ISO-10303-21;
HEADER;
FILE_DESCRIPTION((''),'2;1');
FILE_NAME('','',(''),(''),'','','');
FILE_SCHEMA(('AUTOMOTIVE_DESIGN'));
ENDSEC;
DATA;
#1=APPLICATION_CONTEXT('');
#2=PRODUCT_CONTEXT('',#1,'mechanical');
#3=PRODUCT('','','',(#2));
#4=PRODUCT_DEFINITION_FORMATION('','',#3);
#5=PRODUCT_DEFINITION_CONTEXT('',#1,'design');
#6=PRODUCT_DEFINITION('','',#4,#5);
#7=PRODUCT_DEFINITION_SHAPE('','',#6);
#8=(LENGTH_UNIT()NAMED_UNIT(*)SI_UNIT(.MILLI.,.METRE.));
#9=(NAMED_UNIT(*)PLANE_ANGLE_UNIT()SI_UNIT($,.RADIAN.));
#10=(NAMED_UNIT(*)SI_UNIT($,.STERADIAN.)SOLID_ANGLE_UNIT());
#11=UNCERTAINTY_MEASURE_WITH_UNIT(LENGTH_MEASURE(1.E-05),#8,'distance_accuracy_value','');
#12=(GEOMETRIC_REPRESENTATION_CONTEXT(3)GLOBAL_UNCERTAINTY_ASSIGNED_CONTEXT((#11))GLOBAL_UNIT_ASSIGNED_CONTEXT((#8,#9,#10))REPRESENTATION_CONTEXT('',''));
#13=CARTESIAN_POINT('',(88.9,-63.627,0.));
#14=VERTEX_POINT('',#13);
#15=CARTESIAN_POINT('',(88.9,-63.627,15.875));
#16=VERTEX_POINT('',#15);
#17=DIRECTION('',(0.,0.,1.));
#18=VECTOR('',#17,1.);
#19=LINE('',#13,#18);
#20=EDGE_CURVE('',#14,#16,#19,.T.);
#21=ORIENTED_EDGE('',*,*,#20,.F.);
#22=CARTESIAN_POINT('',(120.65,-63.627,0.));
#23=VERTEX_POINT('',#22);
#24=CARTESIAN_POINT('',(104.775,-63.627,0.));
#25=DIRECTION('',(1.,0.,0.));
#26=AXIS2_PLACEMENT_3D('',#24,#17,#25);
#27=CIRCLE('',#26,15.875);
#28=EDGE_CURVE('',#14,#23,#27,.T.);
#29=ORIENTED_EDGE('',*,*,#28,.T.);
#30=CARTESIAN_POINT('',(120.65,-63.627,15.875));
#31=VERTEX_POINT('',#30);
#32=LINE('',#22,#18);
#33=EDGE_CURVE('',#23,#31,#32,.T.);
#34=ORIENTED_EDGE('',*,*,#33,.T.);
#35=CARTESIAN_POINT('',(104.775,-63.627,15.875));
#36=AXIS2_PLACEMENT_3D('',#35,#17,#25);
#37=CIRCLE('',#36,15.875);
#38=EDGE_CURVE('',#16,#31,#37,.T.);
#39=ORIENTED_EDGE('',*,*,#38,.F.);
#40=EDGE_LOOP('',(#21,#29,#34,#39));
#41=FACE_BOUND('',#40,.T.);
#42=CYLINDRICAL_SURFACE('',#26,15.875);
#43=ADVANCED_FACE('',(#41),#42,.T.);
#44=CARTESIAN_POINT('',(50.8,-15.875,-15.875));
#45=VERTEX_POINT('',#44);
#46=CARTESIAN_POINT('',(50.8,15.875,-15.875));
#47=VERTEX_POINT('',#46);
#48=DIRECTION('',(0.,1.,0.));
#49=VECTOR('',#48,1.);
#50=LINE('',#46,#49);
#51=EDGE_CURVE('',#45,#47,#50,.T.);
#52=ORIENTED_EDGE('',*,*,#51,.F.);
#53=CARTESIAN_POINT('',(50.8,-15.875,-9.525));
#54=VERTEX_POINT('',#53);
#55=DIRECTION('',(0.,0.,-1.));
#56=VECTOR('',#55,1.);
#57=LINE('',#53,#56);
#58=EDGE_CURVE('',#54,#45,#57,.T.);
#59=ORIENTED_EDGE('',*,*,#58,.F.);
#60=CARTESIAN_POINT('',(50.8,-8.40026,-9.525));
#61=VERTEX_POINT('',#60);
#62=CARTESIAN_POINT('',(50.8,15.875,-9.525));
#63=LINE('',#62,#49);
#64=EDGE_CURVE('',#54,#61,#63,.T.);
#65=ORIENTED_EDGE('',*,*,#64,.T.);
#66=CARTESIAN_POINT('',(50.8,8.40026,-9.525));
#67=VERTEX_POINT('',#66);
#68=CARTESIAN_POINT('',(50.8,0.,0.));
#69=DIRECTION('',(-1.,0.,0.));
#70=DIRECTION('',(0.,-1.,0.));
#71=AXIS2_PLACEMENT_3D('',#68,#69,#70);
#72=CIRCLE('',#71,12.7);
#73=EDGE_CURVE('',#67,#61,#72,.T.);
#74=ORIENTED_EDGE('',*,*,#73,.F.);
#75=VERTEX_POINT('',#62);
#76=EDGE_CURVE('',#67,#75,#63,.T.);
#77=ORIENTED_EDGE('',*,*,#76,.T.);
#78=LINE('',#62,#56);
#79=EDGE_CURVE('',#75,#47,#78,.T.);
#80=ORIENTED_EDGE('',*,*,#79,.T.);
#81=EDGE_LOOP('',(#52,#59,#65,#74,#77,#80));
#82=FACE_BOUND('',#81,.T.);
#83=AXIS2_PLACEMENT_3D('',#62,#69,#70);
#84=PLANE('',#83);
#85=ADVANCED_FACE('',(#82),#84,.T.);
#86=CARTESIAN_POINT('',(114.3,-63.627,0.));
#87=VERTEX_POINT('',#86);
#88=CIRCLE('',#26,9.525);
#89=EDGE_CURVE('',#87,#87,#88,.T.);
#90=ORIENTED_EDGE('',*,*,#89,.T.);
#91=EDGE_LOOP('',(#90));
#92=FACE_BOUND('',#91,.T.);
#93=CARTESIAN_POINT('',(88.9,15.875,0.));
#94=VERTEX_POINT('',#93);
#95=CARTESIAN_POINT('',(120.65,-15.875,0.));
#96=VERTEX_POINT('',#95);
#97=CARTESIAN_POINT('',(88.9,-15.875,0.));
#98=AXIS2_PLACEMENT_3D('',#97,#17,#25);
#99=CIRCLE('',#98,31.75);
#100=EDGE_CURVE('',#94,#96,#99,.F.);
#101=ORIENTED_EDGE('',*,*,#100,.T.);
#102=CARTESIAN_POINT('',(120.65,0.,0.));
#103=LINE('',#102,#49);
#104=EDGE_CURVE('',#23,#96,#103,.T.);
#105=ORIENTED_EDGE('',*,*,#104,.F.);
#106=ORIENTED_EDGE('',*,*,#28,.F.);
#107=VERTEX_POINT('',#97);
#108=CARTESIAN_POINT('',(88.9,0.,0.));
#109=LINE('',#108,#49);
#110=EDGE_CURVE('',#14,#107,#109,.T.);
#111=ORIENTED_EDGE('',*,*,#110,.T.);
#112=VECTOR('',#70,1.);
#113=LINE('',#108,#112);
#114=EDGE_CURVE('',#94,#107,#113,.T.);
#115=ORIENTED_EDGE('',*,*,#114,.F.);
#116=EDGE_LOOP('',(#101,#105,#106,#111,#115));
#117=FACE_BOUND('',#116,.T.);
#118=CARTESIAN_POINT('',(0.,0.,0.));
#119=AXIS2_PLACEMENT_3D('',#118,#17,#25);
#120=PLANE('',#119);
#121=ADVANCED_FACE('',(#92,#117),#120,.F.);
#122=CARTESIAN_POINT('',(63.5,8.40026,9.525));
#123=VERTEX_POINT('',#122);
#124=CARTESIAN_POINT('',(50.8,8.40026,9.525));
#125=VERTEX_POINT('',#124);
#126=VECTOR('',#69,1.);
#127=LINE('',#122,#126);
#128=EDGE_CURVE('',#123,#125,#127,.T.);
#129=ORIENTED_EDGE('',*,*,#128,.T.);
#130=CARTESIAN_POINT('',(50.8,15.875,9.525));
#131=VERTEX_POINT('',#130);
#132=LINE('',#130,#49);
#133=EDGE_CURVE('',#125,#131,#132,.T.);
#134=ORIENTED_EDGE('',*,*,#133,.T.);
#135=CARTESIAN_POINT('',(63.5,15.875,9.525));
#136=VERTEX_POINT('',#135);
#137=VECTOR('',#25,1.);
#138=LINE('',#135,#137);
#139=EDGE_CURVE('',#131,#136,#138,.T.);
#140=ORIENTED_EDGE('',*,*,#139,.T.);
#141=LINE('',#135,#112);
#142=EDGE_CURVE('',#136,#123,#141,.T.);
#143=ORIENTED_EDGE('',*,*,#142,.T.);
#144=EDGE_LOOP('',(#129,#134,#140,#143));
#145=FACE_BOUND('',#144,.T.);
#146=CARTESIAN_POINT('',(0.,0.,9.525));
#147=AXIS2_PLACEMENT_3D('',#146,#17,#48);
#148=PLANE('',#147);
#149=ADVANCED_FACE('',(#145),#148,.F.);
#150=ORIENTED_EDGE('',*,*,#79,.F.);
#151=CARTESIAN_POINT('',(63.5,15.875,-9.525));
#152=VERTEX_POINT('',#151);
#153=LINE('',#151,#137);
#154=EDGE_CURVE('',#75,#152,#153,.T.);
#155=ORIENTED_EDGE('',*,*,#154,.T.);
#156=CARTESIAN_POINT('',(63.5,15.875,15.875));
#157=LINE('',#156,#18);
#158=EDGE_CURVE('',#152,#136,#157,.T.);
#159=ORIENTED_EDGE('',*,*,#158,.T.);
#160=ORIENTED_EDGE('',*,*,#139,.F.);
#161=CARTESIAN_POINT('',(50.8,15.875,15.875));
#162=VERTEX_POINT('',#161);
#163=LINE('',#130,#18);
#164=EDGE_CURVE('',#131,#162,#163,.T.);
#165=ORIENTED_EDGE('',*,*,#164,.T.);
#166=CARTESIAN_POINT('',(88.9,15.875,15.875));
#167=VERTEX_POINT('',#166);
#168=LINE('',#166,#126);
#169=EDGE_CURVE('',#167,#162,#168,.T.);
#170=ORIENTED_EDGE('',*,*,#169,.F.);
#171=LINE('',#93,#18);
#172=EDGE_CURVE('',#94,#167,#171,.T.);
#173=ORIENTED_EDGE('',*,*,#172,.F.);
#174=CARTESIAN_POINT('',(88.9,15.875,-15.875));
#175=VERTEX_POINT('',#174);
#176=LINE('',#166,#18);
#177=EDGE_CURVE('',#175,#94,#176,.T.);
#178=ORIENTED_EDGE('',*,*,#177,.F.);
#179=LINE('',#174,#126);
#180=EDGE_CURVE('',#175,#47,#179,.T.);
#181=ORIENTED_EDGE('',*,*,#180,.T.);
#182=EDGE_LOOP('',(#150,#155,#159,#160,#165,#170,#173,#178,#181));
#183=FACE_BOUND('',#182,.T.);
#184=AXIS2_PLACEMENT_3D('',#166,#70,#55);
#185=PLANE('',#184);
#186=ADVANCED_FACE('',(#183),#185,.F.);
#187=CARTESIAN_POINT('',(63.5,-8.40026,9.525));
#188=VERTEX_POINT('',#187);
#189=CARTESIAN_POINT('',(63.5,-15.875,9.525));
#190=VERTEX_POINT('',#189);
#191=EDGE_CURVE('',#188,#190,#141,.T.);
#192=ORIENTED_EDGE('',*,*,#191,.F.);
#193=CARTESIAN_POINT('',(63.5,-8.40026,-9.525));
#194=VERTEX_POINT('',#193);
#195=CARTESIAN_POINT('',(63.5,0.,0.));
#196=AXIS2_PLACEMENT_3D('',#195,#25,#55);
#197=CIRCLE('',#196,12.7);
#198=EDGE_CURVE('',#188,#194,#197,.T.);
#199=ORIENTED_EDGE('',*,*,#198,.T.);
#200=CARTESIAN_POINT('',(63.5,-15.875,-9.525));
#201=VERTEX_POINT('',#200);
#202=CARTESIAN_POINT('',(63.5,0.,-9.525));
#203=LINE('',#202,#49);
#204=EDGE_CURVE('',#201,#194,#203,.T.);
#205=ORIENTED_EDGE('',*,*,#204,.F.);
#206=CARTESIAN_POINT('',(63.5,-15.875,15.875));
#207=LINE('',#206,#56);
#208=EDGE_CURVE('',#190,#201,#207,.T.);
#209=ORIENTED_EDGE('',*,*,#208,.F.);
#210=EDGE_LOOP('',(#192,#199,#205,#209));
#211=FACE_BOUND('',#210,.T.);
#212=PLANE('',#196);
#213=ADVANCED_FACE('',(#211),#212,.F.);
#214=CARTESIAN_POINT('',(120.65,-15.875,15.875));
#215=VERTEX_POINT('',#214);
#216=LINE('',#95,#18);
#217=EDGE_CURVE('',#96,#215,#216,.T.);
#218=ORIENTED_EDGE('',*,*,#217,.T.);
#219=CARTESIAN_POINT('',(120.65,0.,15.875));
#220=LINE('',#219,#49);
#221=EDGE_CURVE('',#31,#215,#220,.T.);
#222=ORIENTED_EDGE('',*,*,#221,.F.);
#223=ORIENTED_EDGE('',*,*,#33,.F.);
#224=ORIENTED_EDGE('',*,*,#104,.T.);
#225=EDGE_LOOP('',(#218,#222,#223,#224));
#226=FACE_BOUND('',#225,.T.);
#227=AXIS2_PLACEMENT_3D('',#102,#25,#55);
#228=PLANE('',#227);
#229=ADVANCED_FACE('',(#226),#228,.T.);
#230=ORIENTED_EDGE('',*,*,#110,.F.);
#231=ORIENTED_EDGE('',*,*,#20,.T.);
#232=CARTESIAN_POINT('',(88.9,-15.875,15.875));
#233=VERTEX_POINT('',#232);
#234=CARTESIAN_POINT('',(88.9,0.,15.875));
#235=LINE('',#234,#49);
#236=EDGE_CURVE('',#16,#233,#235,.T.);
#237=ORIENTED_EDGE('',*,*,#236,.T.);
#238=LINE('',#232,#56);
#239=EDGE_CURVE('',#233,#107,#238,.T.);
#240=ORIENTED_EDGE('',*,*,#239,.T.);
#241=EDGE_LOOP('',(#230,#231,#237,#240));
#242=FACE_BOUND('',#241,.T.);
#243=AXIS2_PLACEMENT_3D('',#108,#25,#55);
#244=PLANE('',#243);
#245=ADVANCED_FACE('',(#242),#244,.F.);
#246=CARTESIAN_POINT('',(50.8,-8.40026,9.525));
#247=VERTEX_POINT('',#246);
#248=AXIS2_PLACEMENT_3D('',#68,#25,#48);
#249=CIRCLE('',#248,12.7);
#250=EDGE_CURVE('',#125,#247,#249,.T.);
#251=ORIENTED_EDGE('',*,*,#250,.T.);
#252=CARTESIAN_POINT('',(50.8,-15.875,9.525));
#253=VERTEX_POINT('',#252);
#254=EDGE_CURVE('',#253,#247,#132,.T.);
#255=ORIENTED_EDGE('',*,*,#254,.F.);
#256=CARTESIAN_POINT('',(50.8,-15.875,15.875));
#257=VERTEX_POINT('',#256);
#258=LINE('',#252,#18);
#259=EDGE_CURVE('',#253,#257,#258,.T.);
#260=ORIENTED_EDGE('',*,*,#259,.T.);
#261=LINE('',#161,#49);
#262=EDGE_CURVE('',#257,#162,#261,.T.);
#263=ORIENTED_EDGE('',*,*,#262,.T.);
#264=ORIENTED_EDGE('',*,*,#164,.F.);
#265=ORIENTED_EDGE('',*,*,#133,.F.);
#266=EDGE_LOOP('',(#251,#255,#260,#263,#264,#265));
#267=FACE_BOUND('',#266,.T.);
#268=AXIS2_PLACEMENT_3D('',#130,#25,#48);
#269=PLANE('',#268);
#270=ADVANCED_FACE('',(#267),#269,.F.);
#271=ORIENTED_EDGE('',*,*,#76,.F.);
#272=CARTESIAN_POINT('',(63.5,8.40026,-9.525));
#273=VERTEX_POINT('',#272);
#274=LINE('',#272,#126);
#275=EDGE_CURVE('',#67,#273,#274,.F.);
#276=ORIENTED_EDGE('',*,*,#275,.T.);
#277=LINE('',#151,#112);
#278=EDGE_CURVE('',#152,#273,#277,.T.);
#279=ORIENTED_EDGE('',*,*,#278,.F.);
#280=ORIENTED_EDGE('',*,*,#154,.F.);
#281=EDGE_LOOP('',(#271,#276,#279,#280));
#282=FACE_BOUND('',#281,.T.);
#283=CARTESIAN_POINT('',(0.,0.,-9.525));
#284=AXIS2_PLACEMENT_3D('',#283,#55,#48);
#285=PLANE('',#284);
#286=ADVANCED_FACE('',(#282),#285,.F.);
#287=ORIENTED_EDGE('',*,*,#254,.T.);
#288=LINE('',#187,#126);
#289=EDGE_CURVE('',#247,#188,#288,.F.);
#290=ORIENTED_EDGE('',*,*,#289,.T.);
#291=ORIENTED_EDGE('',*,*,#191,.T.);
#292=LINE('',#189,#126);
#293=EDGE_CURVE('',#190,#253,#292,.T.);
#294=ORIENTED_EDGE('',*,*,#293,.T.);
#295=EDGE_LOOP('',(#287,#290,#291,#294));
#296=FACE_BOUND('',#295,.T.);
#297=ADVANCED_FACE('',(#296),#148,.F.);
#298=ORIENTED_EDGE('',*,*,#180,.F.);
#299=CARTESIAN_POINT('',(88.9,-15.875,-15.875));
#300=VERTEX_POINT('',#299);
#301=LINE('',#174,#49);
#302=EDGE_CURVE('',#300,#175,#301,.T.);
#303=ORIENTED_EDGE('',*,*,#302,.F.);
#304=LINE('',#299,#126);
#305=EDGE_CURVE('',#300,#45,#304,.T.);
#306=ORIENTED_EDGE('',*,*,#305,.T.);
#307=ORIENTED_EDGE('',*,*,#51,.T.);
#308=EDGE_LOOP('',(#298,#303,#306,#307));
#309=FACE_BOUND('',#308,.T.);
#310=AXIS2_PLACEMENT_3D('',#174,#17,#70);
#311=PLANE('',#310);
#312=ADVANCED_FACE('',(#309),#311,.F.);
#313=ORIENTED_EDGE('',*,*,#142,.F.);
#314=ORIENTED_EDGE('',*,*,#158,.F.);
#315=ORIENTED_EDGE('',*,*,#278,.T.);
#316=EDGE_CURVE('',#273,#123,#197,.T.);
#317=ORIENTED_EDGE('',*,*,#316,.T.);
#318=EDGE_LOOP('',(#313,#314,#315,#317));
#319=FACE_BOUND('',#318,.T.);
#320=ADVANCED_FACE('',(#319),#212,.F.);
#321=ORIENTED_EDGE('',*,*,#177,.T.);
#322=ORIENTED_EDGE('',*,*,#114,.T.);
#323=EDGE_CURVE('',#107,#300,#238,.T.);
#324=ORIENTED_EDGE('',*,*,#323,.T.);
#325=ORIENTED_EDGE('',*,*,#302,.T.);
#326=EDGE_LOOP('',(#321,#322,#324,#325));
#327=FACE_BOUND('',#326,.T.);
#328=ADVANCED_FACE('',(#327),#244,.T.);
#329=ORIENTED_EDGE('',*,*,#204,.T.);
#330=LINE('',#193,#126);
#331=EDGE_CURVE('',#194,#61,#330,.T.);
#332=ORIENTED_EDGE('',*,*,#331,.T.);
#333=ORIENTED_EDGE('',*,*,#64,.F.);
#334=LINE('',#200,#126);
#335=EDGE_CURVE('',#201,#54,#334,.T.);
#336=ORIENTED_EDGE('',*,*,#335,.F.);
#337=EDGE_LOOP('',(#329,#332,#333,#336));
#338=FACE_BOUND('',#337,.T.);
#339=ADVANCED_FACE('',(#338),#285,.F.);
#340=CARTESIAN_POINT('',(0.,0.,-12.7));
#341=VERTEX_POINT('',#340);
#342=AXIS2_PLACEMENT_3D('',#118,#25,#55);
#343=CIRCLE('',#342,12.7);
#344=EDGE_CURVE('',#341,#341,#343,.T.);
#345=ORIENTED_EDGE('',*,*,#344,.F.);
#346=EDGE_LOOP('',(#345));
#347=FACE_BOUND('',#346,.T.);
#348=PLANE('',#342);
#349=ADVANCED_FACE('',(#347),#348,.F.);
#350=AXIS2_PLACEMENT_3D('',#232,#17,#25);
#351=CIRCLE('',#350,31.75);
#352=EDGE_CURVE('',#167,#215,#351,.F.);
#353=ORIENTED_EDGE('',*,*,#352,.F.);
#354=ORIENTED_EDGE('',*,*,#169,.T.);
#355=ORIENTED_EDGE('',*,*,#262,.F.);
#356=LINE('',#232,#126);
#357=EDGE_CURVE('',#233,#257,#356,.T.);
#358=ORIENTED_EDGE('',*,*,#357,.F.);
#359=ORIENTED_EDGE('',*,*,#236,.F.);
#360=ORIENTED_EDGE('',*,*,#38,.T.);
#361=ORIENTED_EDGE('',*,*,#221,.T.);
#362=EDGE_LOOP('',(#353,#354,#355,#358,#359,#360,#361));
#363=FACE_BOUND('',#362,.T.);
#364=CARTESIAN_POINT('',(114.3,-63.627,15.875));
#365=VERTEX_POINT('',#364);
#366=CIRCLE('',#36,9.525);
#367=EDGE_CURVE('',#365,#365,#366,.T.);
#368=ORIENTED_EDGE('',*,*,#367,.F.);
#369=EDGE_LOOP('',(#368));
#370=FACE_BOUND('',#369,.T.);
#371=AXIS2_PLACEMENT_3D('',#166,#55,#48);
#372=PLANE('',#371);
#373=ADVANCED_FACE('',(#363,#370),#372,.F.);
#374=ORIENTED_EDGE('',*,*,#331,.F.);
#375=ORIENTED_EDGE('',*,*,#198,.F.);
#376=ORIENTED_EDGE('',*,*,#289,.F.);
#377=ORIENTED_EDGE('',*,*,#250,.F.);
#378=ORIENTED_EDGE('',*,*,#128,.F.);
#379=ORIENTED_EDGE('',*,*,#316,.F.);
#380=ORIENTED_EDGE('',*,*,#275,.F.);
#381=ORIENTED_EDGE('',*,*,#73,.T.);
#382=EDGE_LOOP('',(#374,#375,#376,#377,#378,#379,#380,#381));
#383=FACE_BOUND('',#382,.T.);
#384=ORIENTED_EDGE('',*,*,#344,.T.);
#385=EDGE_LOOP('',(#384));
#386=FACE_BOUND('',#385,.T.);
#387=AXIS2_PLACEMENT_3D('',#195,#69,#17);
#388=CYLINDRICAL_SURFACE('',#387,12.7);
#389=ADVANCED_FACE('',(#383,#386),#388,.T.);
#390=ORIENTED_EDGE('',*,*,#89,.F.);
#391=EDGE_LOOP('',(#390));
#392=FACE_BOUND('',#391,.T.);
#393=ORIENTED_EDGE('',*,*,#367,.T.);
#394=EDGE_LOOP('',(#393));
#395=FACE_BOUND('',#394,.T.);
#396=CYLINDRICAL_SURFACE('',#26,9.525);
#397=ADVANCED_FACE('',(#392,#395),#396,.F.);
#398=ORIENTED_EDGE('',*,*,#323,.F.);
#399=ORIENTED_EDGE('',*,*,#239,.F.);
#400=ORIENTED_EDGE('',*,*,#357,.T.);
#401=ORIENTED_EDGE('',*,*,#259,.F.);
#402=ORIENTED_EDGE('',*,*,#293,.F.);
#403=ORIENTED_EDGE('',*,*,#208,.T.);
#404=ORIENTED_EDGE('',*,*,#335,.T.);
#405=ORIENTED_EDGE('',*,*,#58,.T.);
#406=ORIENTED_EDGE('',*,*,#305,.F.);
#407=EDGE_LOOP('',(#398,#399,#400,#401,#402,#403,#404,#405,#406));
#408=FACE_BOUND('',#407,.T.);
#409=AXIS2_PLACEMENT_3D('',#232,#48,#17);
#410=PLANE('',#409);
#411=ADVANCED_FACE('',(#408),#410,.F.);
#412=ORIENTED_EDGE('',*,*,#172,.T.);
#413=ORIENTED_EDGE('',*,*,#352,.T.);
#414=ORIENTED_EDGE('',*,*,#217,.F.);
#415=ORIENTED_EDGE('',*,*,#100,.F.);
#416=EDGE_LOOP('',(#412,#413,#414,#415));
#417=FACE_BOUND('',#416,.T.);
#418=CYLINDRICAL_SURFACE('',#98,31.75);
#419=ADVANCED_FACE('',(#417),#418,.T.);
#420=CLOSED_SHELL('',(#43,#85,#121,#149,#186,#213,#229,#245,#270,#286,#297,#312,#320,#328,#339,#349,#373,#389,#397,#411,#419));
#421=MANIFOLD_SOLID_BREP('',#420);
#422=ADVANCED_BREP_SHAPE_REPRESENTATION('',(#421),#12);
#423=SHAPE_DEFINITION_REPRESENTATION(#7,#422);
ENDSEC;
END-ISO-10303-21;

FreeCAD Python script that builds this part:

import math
import FreeCAD as App
import Part
import Sketcher
Q = App.Units.Quantity

doc = App.newDocument("Part")
params = doc.addObject("Spreadsheet::Sheet", "Params")
for row, (alias, value) in enumerate([
    ("sketch1_diameter", "1 in"),
    ("pad1_length", "2.5 in"),
    ("sketch2_width", "1.25 in"),
    ("pad2_length", "1 in"),
    ("sketch3_width", "0.5 in"),
    ("sketch3_height", "1.25 in"),
    ("pad3_length", "0.25 in"),
    ("sketch4_diameter", "0.75 in"),
    ("sketch4_radius", "1.25 in"),
    ("sketch4_height", "3.13 in"),
    ("pad4_length", "0.625 in"),
], start=1):
    params.set(f"A{row}", alias)
    params.set(f"B{row}", "=" + value)
    params.setAlias(f"B{row}", alias)

body = doc.addObject("PartDesign::Body", "Body")

sketch1 = body.newObject("Sketcher::SketchObject", "Sketch")
sketch1.AttachmentSupport = (doc.getObject("YZ_Plane"), [""])
sketch1.MapMode = "FlatFace"
sketch1.addGeometry(Part.Circle(App.Vector(0, 0, 0), App.Vector(0, 0, 1), 13), False)
sketch1.addConstraint([
    Sketcher.Constraint("Coincident", 0, 3, -1, 1),
    Sketcher.Constraint("Diameter", 0, Q("1 in")),
])
sketch1.setExpression("Constraints[1]", "Params.sketch1_diameter")
pad1 = body.newObject("PartDesign::Pad", "Pad")
pad1.Profile = sketch1
pad1.setExpression("Length", "Params.pad1_length")

sketch2 = body.newObject("Sketcher::SketchObject", "Sketch001")
sketch2.AttachmentSupport = (doc.getObject("YZ_Plane"), [""])
sketch2.MapMode = "FlatFace"
sketch2.AttachmentOffset = App.Placement(App.Vector(0, 0, 2.5 * 25.4), App.Rotation())
sketch2.addGeometry([
    Part.LineSegment(App.Vector(16, 16, 0), App.Vector(-16, 16, 0)),
    Part.LineSegment(App.Vector(-16, 16, 0), App.Vector(-16, -16, 0)),
    Part.LineSegment(App.Vector(-16, -16, 0), App.Vector(16, -16, 0)),
    Part.LineSegment(App.Vector(16, -16, 0), App.Vector(16, 16, 0)),
], False)
sketch2.addConstraint([
    Sketcher.Constraint("Coincident", 0, 2, 1, 1),
    Sketcher.Constraint("Coincident", 1, 2, 2, 1),
    Sketcher.Constraint("Coincident", 2, 2, 3, 1),
    Sketcher.Constraint("Coincident", 3, 2, 0, 1),
    Sketcher.Constraint("Horizontal", 0),
    Sketcher.Constraint("Vertical", 1),
    Sketcher.Constraint("Horizontal", 2),
    Sketcher.Constraint("Vertical", 3),
    Sketcher.Constraint("Symmetric", 0, 2, 2, 2, -1, 1),
    Sketcher.Constraint("Equal", 2, 1),
    Sketcher.Constraint("DistanceX", 0, 2, 0, 1, Q("1.25 in")),
])
sketch2.setExpression("Constraints[10]", "Params.sketch2_width")
pad2 = body.newObject("PartDesign::Pad", "Pad001")
pad2.Profile = sketch2
pad2.setExpression("Length", "Params.pad2_length")

sketch3 = body.newObject("Sketcher::SketchObject", "Sketch002")
sketch3.AttachmentSupport = (doc.getObject("XY_Plane"), [""])
sketch3.MapMode = "FlatFace"
sketch3.AttachmentOffset = App.Placement(App.Vector(0, 0, -0.625 * 25.4), App.Rotation())
sketch3.addGeometry([
    Part.LineSegment(App.Vector(64, 16, 0), App.Vector(64, -16, 0)),
    Part.LineSegment(App.Vector(64, -16, 0), App.Vector(51, -16, 0)),
    Part.LineSegment(App.Vector(51, -16, 0), App.Vector(51, 16, 0)),
    Part.LineSegment(App.Vector(51, 16, 0), App.Vector(64, 16, 0)),
], False)
sketch3.addConstraint([
    Sketcher.Constraint("Coincident", 0, 2, 1, 1),
    Sketcher.Constraint("Coincident", 1, 2, 2, 1),
    Sketcher.Constraint("Coincident", 2, 2, 3, 1),
    Sketcher.Constraint("Coincident", 3, 2, 0, 1),
    Sketcher.Constraint("Vertical", 0),
    Sketcher.Constraint("Horizontal", 1),
    Sketcher.Constraint("Vertical", 2),
    Sketcher.Constraint("Horizontal", 3),
    Sketcher.Constraint("DistanceX", 1, 2, 1, 1, Q("0.5 in")),
    Sketcher.Constraint("DistanceX", -1, 1, 1, 2, Q("2 in")),
    Sketcher.Constraint("DistanceY", 0, 2, 0, 1, Q("1.25 in")),
    Sketcher.Constraint("DistanceY", 0, 2, -1, 1, Q("0.625 in")),
])
sketch3.setExpression("Constraints[8]", "Params.sketch3_width")
sketch3.setExpression("Constraints[10]", "Params.sketch3_height")
pad3 = body.newObject("PartDesign::Pad", "Pad002")
pad3.Profile = sketch3
pad3.setExpression("Length", "Params.pad3_length")
doc.recompute()

mirrored = body.newObject("PartDesign::Mirrored", "Mirrored")
mirrored.Originals = [pad3]
mirrored.MirrorPlane = (doc.getObject("XY_Plane"), [""])
body.Tip = mirrored

sketch4 = body.newObject("Sketcher::SketchObject", "Sketch003")
sketch4.AttachmentSupport = (doc.getObject("XY_Plane"), [""])
sketch4.MapMode = "FlatFace"
sketch4.AttachmentOffset = App.Placement(App.Vector(0, 0, 0.625 * 25.4), App.Rotation())
sketch4.addGeometry([
    Part.LineSegment(App.Vector(89, 16, 0), App.Vector(89, -64, 0)),
    Part.ArcOfCircle(Part.Circle(App.Vector(105, -64, 0), App.Vector(0, 0, 1), 16), math.radians(180), math.radians(360)),
    Part.LineSegment(App.Vector(121, -64, 0), App.Vector(121, -16, 0)),
    Part.ArcOfCircle(Part.Circle(App.Vector(89, -16, 0), App.Vector(0, 0, 1), 32), math.radians(0), math.radians(90)),
    Part.Circle(App.Vector(105, -64, 0), App.Vector(0, 0, 1), 10),
], False)
sketch4.addConstraint([
    Sketcher.Constraint("Tangent", 0, 2, 1, 1),
    Sketcher.Constraint("Tangent", 1, 2, 2, 1),
    Sketcher.Constraint("Tangent", 2, 2, 3, 1),
    Sketcher.Constraint("Coincident", 3, 2, 0, 1),
    Sketcher.Constraint("Vertical", 0),
    Sketcher.Constraint("Vertical", 2),
    Sketcher.Constraint("Coincident", 4, 3, 1, 3),
    Sketcher.Constraint("Vertical", 3, 3, 0, 2),
    Sketcher.Constraint("Diameter", 4, Q("0.75 in")),
    Sketcher.Constraint("Radius", 3, Q("1.25 in")),
    Sketcher.Constraint("DistanceY", 0, 2, 0, 1, Q("3.13 in")),
    Sketcher.Constraint("DistanceX", -1, 1, 3, 3, Q("3.5 in")),
    Sketcher.Constraint("DistanceY", 1, 3, -1, 1, Q("2.505 in")),
])
sketch4.setExpression("Constraints[8]", "Params.sketch4_diameter")
sketch4.setExpression("Constraints[9]", "Params.sketch4_radius")
sketch4.setExpression("Constraints[10]", "Params.sketch4_height")
pad4 = body.newObject("PartDesign::Pad", "Pad003")
pad4.Profile = sketch4
pad4.setExpression("Length", "Params.pad4_length")
pad4.Reversed = True

doc.recompute()
